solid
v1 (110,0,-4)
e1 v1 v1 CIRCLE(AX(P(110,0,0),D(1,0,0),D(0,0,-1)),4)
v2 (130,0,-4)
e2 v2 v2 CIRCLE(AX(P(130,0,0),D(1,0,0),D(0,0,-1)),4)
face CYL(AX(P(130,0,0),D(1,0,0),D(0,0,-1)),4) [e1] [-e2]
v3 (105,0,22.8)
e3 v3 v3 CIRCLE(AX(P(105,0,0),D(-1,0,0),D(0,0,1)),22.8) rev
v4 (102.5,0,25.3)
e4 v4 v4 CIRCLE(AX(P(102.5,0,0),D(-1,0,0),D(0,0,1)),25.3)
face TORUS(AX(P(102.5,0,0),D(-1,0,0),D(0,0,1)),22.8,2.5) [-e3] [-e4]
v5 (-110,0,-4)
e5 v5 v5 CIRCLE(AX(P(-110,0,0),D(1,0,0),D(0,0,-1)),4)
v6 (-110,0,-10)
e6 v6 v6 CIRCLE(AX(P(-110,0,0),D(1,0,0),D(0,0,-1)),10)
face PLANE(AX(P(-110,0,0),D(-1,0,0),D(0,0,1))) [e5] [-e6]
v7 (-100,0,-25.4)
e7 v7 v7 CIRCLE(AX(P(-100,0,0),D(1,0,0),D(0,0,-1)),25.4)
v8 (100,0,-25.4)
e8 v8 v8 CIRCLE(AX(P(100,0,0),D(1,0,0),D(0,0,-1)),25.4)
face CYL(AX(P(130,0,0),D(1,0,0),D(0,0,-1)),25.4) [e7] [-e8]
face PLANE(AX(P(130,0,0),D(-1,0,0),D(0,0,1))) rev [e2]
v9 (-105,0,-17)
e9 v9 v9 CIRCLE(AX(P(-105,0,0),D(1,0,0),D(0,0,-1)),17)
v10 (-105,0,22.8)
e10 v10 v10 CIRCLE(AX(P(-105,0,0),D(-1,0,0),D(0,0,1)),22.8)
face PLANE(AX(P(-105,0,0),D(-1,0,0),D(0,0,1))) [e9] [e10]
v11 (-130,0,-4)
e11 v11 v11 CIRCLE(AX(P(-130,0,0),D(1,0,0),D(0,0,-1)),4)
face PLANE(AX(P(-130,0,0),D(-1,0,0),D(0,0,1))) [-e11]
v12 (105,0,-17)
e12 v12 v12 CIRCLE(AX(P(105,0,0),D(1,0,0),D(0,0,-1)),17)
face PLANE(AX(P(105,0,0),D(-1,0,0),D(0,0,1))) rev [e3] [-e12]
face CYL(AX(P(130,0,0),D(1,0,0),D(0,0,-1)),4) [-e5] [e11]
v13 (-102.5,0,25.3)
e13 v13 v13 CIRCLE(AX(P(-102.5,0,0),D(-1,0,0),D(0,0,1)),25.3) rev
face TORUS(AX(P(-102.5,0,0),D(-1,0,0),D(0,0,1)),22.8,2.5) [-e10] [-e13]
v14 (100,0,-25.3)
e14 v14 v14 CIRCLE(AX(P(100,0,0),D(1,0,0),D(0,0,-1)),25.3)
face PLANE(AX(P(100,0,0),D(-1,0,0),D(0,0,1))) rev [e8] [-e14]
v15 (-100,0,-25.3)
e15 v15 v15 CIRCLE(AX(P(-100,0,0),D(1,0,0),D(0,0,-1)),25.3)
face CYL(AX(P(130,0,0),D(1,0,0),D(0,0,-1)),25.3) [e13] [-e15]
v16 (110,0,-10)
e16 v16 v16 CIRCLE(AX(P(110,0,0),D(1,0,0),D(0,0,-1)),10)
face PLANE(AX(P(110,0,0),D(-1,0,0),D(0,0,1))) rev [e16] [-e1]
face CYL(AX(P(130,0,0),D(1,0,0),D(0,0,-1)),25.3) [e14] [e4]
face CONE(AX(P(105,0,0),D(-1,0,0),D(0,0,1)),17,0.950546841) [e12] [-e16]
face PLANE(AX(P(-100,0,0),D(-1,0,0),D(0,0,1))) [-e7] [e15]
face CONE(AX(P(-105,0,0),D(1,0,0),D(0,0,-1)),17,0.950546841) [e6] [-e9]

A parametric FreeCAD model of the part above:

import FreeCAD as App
import Part
import Sketcher
from FreeCAD import Vector


def edges_at(feature, points):
    """Names of the edges that pass closest to the given points."""
    edges = feature.Shape.Edges
    near = lambda p: min(range(len(edges)), key=lambda i: edges[i].distToShape(Part.Vertex(*p))[0])
    return sorted({f"Edge{near(p) + 1}" for p in points})

doc = App.newDocument("Part")
body = doc.addObject("PartDesign::Body", "Body")

sketch1 = doc.addObject("Sketcher::SketchObject", "Sketch")
body.addObject(sketch1)
sketch1.AttachmentSupport = (doc.XZ_Plane, [""])
sketch1.MapMode = "FlatFace"
sketch1.addGeometry([
    Part.LineSegment(Vector(100, 25.4, 0), Vector(100, 25.3, 0)),
    Part.LineSegment(Vector(100, 25.3, 0), Vector(105, 25.3, 0)),
    Part.LineSegment(Vector(105, 25.3, 0), Vector(105, 17, 0)),
    Part.LineSegment(Vector(105, 17, 0), Vector(110, 10, 0)),
    Part.LineSegment(Vector(110, 10, 0), Vector(110, 4, 0)),
    Part.LineSegment(Vector(110, 4, 0), Vector(130, 4, 0)),
    Part.LineSegment(Vector(130, 4, 0), Vector(130, 0, 0)),
    Part.LineSegment(Vector(130, 0, 0), Vector(-130, 0, 0)),
    Part.LineSegment(Vector(-130, 0, 0), Vector(-130, 4, 0)),
    Part.LineSegment(Vector(-130, 4, 0), Vector(-110, 4, 0)),
    Part.LineSegment(Vector(-110, 4, 0), Vector(-110, 10, 0)),
    Part.LineSegment(Vector(-110, 10, 0), Vector(-105, 17, 0)),
    Part.LineSegment(Vector(-105, 17, 0), Vector(-105, 25.3, 0)),
    Part.LineSegment(Vector(-105, 25.3, 0), Vector(-100, 25.3, 0)),
    Part.LineSegment(Vector(-100, 25.3, 0), Vector(-100, 25.4, 0)),
    Part.LineSegment(Vector(-100, 25.4, 0), Vector(100, 25.4, 0)),
], False)
sketch1.addConstraint([
    Sketcher.Constraint("Coincident", 0, 2, 1, 1),
    Sketcher.Constraint("Coincident", 1, 2, 2, 1),
    Sketcher.Constraint("Coincident", 2, 2, 3, 1),
    Sketcher.Constraint("Coincident", 3, 2, 4, 1),
    Sketcher.Constraint("Coincident", 4, 2, 5, 1),
    Sketcher.Constraint("Coincident", 5, 2, 6, 1),
    Sketcher.Constraint("Coincident", 6, 2, 7, 1),
    Sketcher.Constraint("Coincident", 7, 2, 8, 1),
    Sketcher.Constraint("Coincident", 8, 2, 9, 1),
    Sketcher.Constraint("Coincident", 9, 2, 10, 1),
    Sketcher.Constraint("Coincident", 10, 2, 11, 1),
    Sketcher.Constraint("Coincident", 11, 2, 12, 1),
    Sketcher.Constraint("Coincident", 12, 2, 13, 1),
    Sketcher.Constraint("Coincident", 13, 2, 14, 1),
    Sketcher.Constraint("Coincident", 14, 2, 15, 1),
    Sketcher.Constraint("Coincident", 15, 2, 0, 1),
    Sketcher.Constraint("Vertical", 0),
    Sketcher.Constraint("Horizontal", 1),
    Sketcher.Constraint("Vertical", 2),
    Sketcher.Constraint("Vertical", 4),
    Sketcher.Constraint("Horizontal", 5),
    Sketcher.Constraint("Vertical", 6),
    Sketcher.Constraint("Horizontal", 7),
    Sketcher.Constraint("Vertical", 8),
    Sketcher.Constraint("Horizontal", 9),
    Sketcher.Constraint("Vertical", 10),
    Sketcher.Constraint("Vertical", 12),
    Sketcher.Constraint("Horizontal", 13),
    Sketcher.Constraint("Vertical", 14),
    Sketcher.Constraint("Horizontal", 15),
    Sketcher.Constraint("Symmetric", 6, 2, 7, 2, -1, 1),
    Sketcher.Constraint("Symmetric", 4, 2, 9, 2, -2),
    Sketcher.Constraint("Symmetric", 2, 2, 11, 2, -2),
    Sketcher.Constraint("Symmetric", 0, 2, 13, 2, -2),
    Sketcher.Constraint("Horizontal", 3, 2, 10, 2),
    Sketcher.Constraint("DistanceX", 1, 1, 1, 2, 5.0),
    Sketcher.Constraint("DistanceX", 5, 1, 5, 2, 20.0),
    Sketcher.Constraint("DistanceX", 7, 2, 7, 1, 260.0),
    Sketcher.Constraint("DistanceX", 15, 1, 15, 2, 200.0),
    Sketcher.Constraint("DistanceY", 4, 2, 4, 1, 6.0),
    Sketcher.Constraint("DistanceY", 6, 2, 6, 1, 4.0),
    Sketcher.Constraint("DistanceY", 0, 2, 0, 1, 0.1),
    Sketcher.Constraint("DistanceY", 2, 2, 2, 1, 8.3),
    Sketcher.Constraint("DistanceY", -1, 1, 2, 2, 17.0),
])
revolution = doc.addObject("PartDesign::Revolution", "Revolution")
body.addObject(revolution)
revolution.Profile = sketch1
revolution.ReferenceAxis = (sketch1, ["H_Axis"])
revolution.Angle = 360
doc.recompute()

fillet = doc.addObject("PartDesign::Fillet", "Fillet")
body.addObject(fillet)
fillet.Base = (revolution, edges_at(revolution, [(105, 0, 25.3), (-105, 0, 25.3)]))
fillet.Radius = 2.5

doc.recompute()
